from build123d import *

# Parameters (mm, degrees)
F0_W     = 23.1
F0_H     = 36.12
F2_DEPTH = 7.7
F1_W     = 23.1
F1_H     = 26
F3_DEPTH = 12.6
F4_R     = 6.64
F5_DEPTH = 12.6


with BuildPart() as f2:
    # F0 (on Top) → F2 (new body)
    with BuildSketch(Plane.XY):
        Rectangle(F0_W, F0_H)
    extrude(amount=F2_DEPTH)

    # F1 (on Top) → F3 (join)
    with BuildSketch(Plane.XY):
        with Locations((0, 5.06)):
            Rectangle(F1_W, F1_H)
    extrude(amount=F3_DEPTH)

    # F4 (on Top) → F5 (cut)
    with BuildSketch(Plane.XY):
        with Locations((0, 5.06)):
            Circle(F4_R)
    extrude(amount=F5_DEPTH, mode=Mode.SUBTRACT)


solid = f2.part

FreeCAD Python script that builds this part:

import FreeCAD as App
import Part
import Sketcher
Q = App.Units.Quantity


def add_polygon(sketch, points):
    """Adds a closed chain of lines whose ends are joined by coincident constraints."""
    first, n = sketch.GeometryCount, len(points)
    for a, b in zip(points, points[1:] + points[:1]):
        sketch.addGeometry(Part.LineSegment(App.Vector(*a, 0), App.Vector(*b, 0)), False)
    for i in range(n):
        sketch.addConstraint(Sketcher.Constraint("Coincident", first + i, 2, first + (i + 1) % n, 1))

doc = App.newDocument("Part")
body = doc.addObject("PartDesign::Body", "Body")

sketch1 = body.newObject("Sketcher::SketchObject", "Sketch")
sketch1.AttachmentSupport = (doc.getObject("XY_Plane"), [""])
sketch1.MapMode = "FlatFace"
add_polygon(sketch1, [(-11.55, 18.06), (-11.55, -18.06), (11.55, -18.06), (11.55, 18.06)])
sketch1.addConstraint([
    Sketcher.Constraint("Vertical", 0),
    Sketcher.Constraint("Horizontal", 1),
    Sketcher.Constraint("Vertical", 2),
    Sketcher.Constraint("Horizontal", 3),
    Sketcher.Constraint("Symmetric", 0, 2, 2, 2, -1, 1),
    Sketcher.Constraint("DistanceX", 1, 1, 1, 2, Q("23.1 mm")),
    Sketcher.Constraint("DistanceY", 0, 2, 0, 1, Q("36.12 mm")),
])
pad1 = body.newObject("PartDesign::Pad", "Pad")
pad1.Profile = sketch1
pad1.Length = 7.7

sketch2 = body.newObject("Sketcher::SketchObject", "Sketch001")
sketch2.AttachmentSupport = (doc.getObject("XY_Plane"), [""])
sketch2.MapMode = "FlatFace"
add_polygon(sketch2, [(-11.55, 18.06), (-11.55, -7.94), (11.55, -7.94), (11.55, 18.06)])
sketch2.addConstraint([
    Sketcher.Constraint("Vertical", 0),
    Sketcher.Constraint("Horizontal", 1),
    Sketcher.Constraint("Vertical", 2),
    Sketcher.Constraint("Horizontal", 3),
    Sketcher.Constraint("DistanceY", 0, 2, 0, 1, Q("26 mm")),
    Sketcher.Constraint("DistanceX", 1, 1, 1, 2, Q("23.1 mm")),
    Sketcher.Constraint("DistanceX", 0, 2, -1, 1, Q("11.55 mm")),
    Sketcher.Constraint("DistanceY", 0, 2, -1, 1, Q("7.94 mm")),
])
pad2 = body.newObject("PartDesign::Pad", "Pad001")
pad2.Profile = sketch2
pad2.Length = 12.6

sketch3 = body.newObject("Sketcher::SketchObject", "Sketch002")
sketch3.AttachmentSupport = (doc.getObject("XY_Plane"), [""])
sketch3.MapMode = "FlatFace"
sketch3.addGeometry(Part.Circle(App.Vector(0, 5.06, 0), App.Vector(0, 0, 1), 6.64), False)
sketch3.addConstraint([
    Sketcher.Constraint("PointOnObject", 0, 3, -2),
    Sketcher.Constraint("Diameter", 0, Q("13.28 mm")),
    Sketcher.Constraint("DistanceY", -1, 1, 0, 3, Q("5.06 mm")),
])
pocket1 = body.newObject("PartDesign::Pocket", "Pocket")
pocket1.Profile = sketch3
pocket1.Length = 12.6
pocket1.Reversed = True

doc.recompute()
